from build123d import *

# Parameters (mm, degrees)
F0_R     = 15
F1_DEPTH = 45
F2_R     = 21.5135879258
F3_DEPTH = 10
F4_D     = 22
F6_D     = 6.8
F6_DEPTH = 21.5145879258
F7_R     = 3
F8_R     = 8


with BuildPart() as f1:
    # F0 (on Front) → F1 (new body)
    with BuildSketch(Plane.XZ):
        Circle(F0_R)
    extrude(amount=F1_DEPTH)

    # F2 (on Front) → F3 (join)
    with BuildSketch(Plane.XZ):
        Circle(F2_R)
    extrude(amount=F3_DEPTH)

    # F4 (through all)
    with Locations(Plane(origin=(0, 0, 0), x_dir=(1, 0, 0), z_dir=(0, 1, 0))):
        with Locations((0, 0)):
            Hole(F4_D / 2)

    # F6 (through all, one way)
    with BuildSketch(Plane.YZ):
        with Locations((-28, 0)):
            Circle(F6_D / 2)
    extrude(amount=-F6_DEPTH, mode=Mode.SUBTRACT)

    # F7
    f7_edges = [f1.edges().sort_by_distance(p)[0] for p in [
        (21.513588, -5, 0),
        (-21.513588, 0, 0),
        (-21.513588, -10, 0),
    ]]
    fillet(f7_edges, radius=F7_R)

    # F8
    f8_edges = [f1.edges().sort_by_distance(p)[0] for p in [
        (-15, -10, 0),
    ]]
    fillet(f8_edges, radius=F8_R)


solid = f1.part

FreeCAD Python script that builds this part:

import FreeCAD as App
import Part
import Sketcher
from FreeCAD import Vector
Q = App.Units.Quantity


def edges_at(feature, points):
    """Names of the edges that pass closest to the given points."""
    edges = feature.Shape.Edges
    near = lambda p: min(range(len(edges)), key=lambda i: edges[i].distToShape(Part.Vertex(*p))[0])
    return sorted({f"Edge{near(p) + 1}" for p in points})

doc = App.newDocument("Part")
body = doc.addObject("PartDesign::Body", "Body")

# Sketch on XZ plane
sketch1 = doc.addObject("Sketcher::SketchObject", "Sketch")
body.addObject(sketch1)
sketch1.AttachmentSupport = (doc.XZ_Plane, [""])
sketch1.MapMode = "FlatFace"
sketch1.addGeometry(Part.Circle(Vector(0, 0, 0), Vector(0, 0, 1), 15), False)
sketch1.addConstraint(Sketcher.Constraint("Coincident", 0, 3, -1, 1))
sketch1.addConstraint(Sketcher.Constraint("Diameter", 0, Q("30 mm")))
pad1 = doc.addObject("PartDesign::Pad", "Pad")
body.addObject(pad1)
pad1.Profile = sketch1
pad1.Length = 45

# Sketch on XZ plane
sketch2 = doc.addObject("Sketcher::SketchObject", "Sketch001")
body.addObject(sketch2)
sketch2.AttachmentSupport = (doc.XZ_Plane, [""])
sketch2.MapMode = "FlatFace"
sketch2.addGeometry(Part.Circle(Vector(0, 0, 0), Vector(0, 0, 1), 22), False)
sketch2.addConstraint(Sketcher.Constraint("Coincident", 0, 3, -1, 1))
sketch2.addConstraint(Sketcher.Constraint("Diameter", 0, Q("43.027176 mm")))
pad2 = doc.addObject("PartDesign::Pad", "Pad001")
body.addObject(pad2)
pad2.Profile = sketch2
pad2.Length = 10

# Sketch on XZ plane
sketch3 = doc.addObject("Sketcher::SketchObject", "Sketch002")
body.addObject(sketch3)
sketch3.AttachmentSupport = (doc.XZ_Plane, [""])
sketch3.MapMode = "FlatFace"
sketch3.addGeometry(Part.Circle(Vector(0, 0, 0), Vector(0, 0, 1), 11), False)
sketch3.addConstraint(Sketcher.Constraint("Coincident", 0, 3, -1, 1))
sketch3.addConstraint(Sketcher.Constraint("Diameter", 0, Q("22 mm")))
doc.recompute()
hole = doc.addObject("PartDesign::Hole", "Hole")
body.addObject(hole)
hole.Profile = sketch3
hole.ThreadType = "None"
hole.Diameter = 22
hole.DepthType = "ThroughAll"
hole.Reversed = True

# Sketch on YZ plane
sketch4 = doc.addObject("Sketcher::SketchObject", "Sketch003")
body.addObject(sketch4)
sketch4.AttachmentSupport = (doc.YZ_Plane, [""])
sketch4.MapMode = "FlatFace"
sketch4.addGeometry(Part.Circle(Vector(-28, 0, 0), Vector(0, 0, 1), 3.4), False)
sketch4.addConstraint(Sketcher.Constraint("PointOnObject", 0, 3, -1))
sketch4.addConstraint(Sketcher.Constraint("Diameter", 0, Q("6.8 mm")))
sketch4.addConstraint(Sketcher.Constraint("DistanceX", 0, 3, -1, 1, Q("28 mm")))
pocket1 = doc.addObject("PartDesign::Pocket", "Pocket")
body.addObject(pocket1)
pocket1.Profile = sketch4
pocket1.Type = "ThroughAll"
doc.recompute()

fillet = doc.addObject("PartDesign::Fillet", "Fillet")
body.addObject(fillet)
fillet.Base = (pocket1, edges_at(pocket1, [(21.514, -5, 0), (-21.514, 0, 0), (-21.514, -10, 0)]))
fillet.Radius = 3
doc.recompute()

fillet2 = doc.addObject("PartDesign::Fillet", "Fillet001")
body.addObject(fillet2)
fillet2.Base = (fillet, edges_at(fillet, [(-15, -10, 0)]))
fillet2.Radius = 8

doc.recompute()
